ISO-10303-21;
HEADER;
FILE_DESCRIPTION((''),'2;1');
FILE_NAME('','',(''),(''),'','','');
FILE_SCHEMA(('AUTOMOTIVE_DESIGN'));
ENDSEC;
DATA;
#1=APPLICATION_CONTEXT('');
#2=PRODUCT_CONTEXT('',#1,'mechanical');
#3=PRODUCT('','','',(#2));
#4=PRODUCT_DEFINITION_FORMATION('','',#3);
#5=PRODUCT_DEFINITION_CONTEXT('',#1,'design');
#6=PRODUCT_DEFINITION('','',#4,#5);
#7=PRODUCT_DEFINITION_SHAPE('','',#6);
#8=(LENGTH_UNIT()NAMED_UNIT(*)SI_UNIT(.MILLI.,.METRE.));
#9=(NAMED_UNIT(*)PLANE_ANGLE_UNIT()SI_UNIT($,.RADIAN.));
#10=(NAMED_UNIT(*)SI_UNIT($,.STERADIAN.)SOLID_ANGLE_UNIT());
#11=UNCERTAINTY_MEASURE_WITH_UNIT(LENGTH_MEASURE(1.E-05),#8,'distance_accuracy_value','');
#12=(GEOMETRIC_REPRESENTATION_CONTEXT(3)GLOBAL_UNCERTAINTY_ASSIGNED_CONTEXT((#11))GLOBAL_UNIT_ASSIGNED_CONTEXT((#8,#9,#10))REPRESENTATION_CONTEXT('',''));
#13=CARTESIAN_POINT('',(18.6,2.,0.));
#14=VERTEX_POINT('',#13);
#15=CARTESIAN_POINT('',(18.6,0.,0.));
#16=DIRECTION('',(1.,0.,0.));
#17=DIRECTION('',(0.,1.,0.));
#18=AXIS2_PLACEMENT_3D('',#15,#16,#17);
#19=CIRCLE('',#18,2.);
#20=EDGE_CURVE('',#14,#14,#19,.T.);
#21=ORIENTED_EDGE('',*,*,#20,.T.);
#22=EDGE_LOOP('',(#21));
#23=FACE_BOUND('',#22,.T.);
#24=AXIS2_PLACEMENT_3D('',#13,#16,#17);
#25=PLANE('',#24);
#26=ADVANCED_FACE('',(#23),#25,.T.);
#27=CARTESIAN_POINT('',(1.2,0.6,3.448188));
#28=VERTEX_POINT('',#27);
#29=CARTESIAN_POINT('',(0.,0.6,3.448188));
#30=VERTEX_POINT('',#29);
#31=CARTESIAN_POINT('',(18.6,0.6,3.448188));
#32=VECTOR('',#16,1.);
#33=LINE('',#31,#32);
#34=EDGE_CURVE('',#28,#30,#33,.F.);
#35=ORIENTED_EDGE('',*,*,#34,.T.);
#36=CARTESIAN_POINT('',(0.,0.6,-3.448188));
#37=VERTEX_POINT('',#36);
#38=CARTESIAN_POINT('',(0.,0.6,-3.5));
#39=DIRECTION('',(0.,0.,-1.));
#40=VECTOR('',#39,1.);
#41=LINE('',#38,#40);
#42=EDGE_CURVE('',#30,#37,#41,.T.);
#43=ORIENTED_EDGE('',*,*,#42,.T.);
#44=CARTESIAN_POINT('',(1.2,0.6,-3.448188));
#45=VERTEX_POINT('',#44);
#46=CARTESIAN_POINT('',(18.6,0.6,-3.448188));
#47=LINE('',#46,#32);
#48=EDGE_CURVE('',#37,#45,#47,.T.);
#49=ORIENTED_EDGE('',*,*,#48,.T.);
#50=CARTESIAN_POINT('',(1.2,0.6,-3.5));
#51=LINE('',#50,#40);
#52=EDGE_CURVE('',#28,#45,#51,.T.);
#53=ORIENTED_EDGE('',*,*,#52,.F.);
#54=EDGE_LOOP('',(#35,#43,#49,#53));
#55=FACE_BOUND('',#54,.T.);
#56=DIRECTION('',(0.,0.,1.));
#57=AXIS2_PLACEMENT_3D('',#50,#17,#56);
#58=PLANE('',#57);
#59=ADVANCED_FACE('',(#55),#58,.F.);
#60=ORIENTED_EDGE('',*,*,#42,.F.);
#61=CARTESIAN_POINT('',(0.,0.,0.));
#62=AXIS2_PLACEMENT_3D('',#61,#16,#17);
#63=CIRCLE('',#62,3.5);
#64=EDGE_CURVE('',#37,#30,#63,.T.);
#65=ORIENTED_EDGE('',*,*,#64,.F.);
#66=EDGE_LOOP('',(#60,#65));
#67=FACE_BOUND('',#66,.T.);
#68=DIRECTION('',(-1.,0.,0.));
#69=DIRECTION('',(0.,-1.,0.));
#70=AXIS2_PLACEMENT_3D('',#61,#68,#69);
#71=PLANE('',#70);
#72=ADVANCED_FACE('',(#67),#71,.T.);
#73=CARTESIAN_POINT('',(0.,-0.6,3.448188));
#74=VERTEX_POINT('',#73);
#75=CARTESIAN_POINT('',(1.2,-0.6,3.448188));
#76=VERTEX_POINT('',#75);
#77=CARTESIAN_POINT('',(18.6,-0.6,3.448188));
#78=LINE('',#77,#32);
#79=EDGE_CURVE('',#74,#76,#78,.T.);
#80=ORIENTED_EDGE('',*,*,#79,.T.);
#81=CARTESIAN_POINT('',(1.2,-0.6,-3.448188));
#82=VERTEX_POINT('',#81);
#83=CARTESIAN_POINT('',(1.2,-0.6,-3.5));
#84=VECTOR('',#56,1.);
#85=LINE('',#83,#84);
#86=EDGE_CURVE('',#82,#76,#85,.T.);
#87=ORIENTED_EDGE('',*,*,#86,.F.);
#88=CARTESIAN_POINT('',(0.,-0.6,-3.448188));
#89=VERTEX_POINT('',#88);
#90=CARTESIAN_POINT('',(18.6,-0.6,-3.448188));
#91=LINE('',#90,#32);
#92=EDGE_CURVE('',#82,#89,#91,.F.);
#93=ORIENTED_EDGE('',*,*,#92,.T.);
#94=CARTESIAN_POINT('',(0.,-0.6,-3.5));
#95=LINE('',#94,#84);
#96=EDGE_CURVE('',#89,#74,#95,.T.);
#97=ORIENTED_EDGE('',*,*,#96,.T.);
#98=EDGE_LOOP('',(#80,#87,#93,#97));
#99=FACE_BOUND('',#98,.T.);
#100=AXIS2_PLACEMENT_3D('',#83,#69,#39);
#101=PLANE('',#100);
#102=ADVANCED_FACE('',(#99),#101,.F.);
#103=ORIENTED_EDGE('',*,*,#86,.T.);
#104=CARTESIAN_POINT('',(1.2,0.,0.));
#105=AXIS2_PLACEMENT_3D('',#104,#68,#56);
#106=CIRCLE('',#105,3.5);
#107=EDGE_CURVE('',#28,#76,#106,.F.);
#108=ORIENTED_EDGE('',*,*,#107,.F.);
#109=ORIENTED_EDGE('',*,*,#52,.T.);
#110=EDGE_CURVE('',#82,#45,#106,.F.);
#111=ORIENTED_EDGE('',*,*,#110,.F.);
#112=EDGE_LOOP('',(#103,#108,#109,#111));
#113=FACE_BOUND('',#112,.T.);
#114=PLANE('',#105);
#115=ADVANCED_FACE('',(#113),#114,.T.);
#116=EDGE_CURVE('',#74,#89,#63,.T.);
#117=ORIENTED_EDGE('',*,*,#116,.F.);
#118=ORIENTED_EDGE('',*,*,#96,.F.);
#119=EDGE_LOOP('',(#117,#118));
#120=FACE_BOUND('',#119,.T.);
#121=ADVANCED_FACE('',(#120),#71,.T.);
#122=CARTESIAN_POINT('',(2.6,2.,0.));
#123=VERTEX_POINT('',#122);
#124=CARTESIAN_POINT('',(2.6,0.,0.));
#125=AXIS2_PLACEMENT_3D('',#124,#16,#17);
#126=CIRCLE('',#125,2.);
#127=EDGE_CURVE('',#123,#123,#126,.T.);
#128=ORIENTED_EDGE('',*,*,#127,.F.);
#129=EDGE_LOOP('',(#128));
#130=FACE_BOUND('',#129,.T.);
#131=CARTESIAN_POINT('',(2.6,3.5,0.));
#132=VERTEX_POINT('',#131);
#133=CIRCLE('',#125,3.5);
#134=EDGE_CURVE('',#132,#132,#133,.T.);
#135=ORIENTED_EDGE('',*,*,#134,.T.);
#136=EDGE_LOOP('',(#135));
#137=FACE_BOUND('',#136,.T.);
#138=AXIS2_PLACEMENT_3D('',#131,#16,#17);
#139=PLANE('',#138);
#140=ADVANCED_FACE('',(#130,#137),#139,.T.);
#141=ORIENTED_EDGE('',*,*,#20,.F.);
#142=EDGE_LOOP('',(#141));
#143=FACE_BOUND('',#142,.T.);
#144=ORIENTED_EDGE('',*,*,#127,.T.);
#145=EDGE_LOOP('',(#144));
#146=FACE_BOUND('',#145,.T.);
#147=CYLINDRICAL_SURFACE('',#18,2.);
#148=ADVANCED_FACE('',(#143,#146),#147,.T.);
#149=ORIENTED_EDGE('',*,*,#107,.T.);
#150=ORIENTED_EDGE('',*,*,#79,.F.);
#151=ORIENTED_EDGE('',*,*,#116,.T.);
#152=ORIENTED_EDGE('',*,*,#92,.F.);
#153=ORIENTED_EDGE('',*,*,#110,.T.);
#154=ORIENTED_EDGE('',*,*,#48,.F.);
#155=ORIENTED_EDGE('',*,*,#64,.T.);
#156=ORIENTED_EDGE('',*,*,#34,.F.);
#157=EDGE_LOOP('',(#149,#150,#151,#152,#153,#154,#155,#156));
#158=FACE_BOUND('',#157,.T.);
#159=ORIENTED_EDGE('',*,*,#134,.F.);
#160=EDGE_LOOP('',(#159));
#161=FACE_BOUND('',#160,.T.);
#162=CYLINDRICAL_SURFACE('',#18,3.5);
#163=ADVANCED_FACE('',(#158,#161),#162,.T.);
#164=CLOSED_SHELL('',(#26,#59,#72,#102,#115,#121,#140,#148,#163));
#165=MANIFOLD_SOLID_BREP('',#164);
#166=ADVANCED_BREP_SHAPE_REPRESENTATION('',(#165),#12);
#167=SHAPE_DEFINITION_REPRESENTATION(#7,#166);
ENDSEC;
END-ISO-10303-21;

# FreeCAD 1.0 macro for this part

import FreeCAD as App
import Part
import Sketcher

V = App.Vector
Q = App.Units.Quantity


def add_polygon(sketch, points):
    """Adds a closed chain of lines whose ends are joined by coincident constraints."""
    first, n = sketch.GeometryCount, len(points)
    for a, b in zip(points, points[1:] + points[:1]):
        sketch.addGeometry(Part.LineSegment(App.Vector(*a, 0), App.Vector(*b, 0)), False)
    for i in range(n):
        sketch.addConstraint(Sketcher.Constraint("Coincident", first + i, 2, first + (i + 1) % n, 1))

doc = App.newDocument("Part")
params = doc.addObject("Spreadsheet::Sheet", "Params")
for row, (alias, value) in enumerate([
    ("sketch1_width", "16 mm"),
    ("sketch1_height", "2 mm"),
    ("sketch1_width2", "18.6 mm"),
    ("sketch1_height2", "3.5 mm"),
    ("revolution_angle", "360 deg"),
    ("sketch2_height", "7 mm"),
    ("sketch2_width", "1.2 mm"),
    ("pocket1_length", "1.2 mm"),
], start=1):
    params.set(f"A{row}", alias)
    params.set(f"B{row}", "=" + value)
    params.setAlias(f"B{row}", alias)

body = doc.addObject("PartDesign::Body", "Body")

sketch1 = body.newObject("Sketcher::SketchObject", "Sketch")
sketch1.AttachmentSupport = (doc.getObject("XY_Plane"), [""])
sketch1.MapMode = "FlatFace"
add_polygon(sketch1, [(0, 3.5), (0, 0), (18.6, 0), (18.6, 2), (2.6, 2), (2.6, 3.5)])
sketch1.addConstraint([
    Sketcher.Constraint("Vertical", 0),
    Sketcher.Constraint("Horizontal", 1),
    Sketcher.Constraint("Vertical", 2),
    Sketcher.Constraint("Horizontal", 3),
    Sketcher.Constraint("Vertical", 4),
    Sketcher.Constraint("Horizontal", 5),
    Sketcher.Constraint("Coincident", 0, 2, -1, 1),
    Sketcher.Constraint("DistanceX", 3, 2, 3, 1, Q("16 mm")),
    Sketcher.Constraint("DistanceY", 2, 1, 2, 2, Q("2 mm")),
    Sketcher.Constraint("DistanceX", 1, 1, 1, 2, Q("18.6 mm")),
    Sketcher.Constraint("DistanceY", 0, 2, 0, 1, Q("3.5 mm")),
])
sketch1.setExpression("Constraints[13]", "Params.sketch1_width")
sketch1.setExpression("Constraints[14]", "Params.sketch1_height")
sketch1.setExpression("Constraints[15]", "Params.sketch1_width2")
sketch1.setExpression("Constraints[16]", "Params.sketch1_height2")
revolution = body.newObject("PartDesign::Revolution", "Revolution")
revolution.Profile = sketch1
revolution.ReferenceAxis = (sketch1, ["H_Axis"])
revolution.setExpression("Angle", "Params.revolution_angle")

sketch2 = body.newObject("Sketcher::SketchObject", "Sketch001")
sketch2.AttachmentSupport = (doc.getObject("YZ_Plane"), [""])
sketch2.MapMode = "FlatFace"
add_polygon(sketch2, [(0.6, -3.5), (-0.6, -3.5), (-0.6, 3.5), (0.6, 3.5)])
sketch2.addConstraint([
    Sketcher.Constraint("Horizontal", 0),
    Sketcher.Constraint("Vertical", 1),
    Sketcher.Constraint("Horizontal", 2),
    Sketcher.Constraint("Vertical", 3),
    Sketcher.Constraint("Symmetric", 0, 2, 2, 2, -1, 1),
    Sketcher.Constraint("DistanceY", 1, 1, 1, 2, Q("7 mm")),
    Sketcher.Constraint("DistanceX", 0, 2, 0, 1, Q("1.2 mm")),
])
sketch2.setExpression("Constraints[9]", "Params.sketch2_height")
sketch2.setExpression("Constraints[10]", "Params.sketch2_width")
pocket1 = body.newObject("PartDesign::Pocket", "Pocket")
pocket1.Profile = sketch2
pocket1.setExpression("Length", "Params.pocket1_length")
pocket1.Reversed = True

doc.recompute()
